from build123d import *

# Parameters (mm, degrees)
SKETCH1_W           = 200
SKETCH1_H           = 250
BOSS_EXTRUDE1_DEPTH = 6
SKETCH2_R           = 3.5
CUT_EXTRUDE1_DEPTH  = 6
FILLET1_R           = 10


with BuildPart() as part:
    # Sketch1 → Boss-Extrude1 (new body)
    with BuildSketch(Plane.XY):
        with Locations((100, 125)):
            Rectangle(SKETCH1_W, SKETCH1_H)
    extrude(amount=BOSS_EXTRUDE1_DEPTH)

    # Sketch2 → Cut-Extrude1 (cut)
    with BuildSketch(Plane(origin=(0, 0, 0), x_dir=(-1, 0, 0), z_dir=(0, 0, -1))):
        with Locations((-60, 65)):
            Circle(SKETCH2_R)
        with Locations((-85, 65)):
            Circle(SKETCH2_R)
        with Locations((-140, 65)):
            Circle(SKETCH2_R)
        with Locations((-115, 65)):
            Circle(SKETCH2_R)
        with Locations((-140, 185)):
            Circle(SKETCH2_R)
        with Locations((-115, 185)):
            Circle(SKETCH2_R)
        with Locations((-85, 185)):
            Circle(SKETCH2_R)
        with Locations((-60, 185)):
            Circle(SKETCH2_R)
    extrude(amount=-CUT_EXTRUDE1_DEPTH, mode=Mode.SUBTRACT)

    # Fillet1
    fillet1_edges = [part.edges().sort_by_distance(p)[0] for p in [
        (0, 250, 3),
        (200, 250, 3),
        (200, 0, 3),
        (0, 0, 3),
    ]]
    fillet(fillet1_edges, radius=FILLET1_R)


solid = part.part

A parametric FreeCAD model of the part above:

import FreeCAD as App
import Part
import Sketcher


def edges_at(feature, points):
    """Names of the edges that pass closest to the given points."""
    edges = feature.Shape.Edges
    near = lambda p: min(range(len(edges)), key=lambda i: edges[i].distToShape(Part.Vertex(*p))[0])
    return sorted({f"Edge{near(p) + 1}" for p in points})


def add_polygon(sketch, points):
    """Adds a closed chain of lines whose ends are joined by coincident constraints."""
    first, n = sketch.GeometryCount, len(points)
    for a, b in zip(points, points[1:] + points[:1]):
        sketch.addGeometry(Part.LineSegment(App.Vector(*a, 0), App.Vector(*b, 0)), False)
    for i in range(n):
        sketch.addConstraint(Sketcher.Constraint("Coincident", first + i, 2, first + (i + 1) % n, 1))

doc = App.newDocument("Part")
body = doc.addObject("PartDesign::Body", "Body")

# Sketch on XY plane
sketch1 = body.newObject("Sketcher::SketchObject", "Sketch")
sketch1.AttachmentSupport = (doc.getObject("XY_Plane"), [""])
sketch1.MapMode = "FlatFace"
add_polygon(sketch1, [(0, 250), (0, 0), (200, 0), (200, 250)])  # lines 0-3
sketch1.addConstraint([
    Sketcher.Constraint("Vertical", 0),
    Sketcher.Constraint("Horizontal", 1),
    Sketcher.Constraint("Vertical", 2),
    Sketcher.Constraint("Horizontal", 3),
    Sketcher.Constraint("Coincident", 0, 2, -1, 1),
    Sketcher.Constraint("DistanceX", 1, 1, 1, 2, 200.0),
    Sketcher.Constraint("DistanceY", 0, 2, 0, 1, 250.0),
])
pad1 = body.newObject("PartDesign::Pad", "Pad")
pad1.Profile = sketch1
pad1.Length = 6

# Sketch on XY plane
sketch2 = body.newObject("Sketcher::SketchObject", "Sketch001")
sketch2.AttachmentSupport = (doc.getObject("XY_Plane"), [""])
sketch2.MapMode = "FlatFace"
sketch2.addGeometry([
    Part.Circle(App.Vector(60, 65, 0), App.Vector(0, 0, 1), 3.5),  # 0
    Part.Circle(App.Vector(85, 65, 0), App.Vector(0, 0, 1), 3.5),  # 1
    Part.Circle(App.Vector(140, 65, 0), App.Vector(0, 0, 1), 3.5),  # 2
    Part.Circle(App.Vector(115, 65, 0), App.Vector(0, 0, 1), 3.5),  # 3
    Part.Circle(App.Vector(140, 185, 0), App.Vector(0, 0, 1), 3.5),  # 4
    Part.Circle(App.Vector(115, 185, 0), App.Vector(0, 0, 1), 3.5),  # 5
    Part.Circle(App.Vector(85, 185, 0), App.Vector(0, 0, 1), 3.5),  # 6
    Part.Circle(App.Vector(60, 185, 0), App.Vector(0, 0, 1), 3.5),  # 7
], False)
sketch2.addConstraint([
    Sketcher.Constraint("Equal", 0, 1),
    Sketcher.Constraint("Equal", 1, 2),
    Sketcher.Constraint("Equal", 2, 3),
    Sketcher.Constraint("Equal", 3, 4),
    Sketcher.Constraint("Equal", 4, 5),
    Sketcher.Constraint("Equal", 5, 6),
    Sketcher.Constraint("Equal", 6, 7),
    Sketcher.Constraint("Horizontal", 0, 3, 1, 3),
    Sketcher.Constraint("Horizontal", 1, 3, 2, 3),
    Sketcher.Constraint("Horizontal", 2, 3, 3, 3),
    Sketcher.Constraint("Horizontal", 4, 3, 5, 3),
    Sketcher.Constraint("Horizontal", 5, 3, 6, 3),
    Sketcher.Constraint("Horizontal", 6, 3, 7, 3),
    Sketcher.Constraint("Vertical", 2, 3, 4, 3),
    Sketcher.Constraint("Vertical", 3, 3, 5, 3),
    Sketcher.Constraint("Vertical", 1, 3, 6, 3),
    Sketcher.Constraint("Vertical", 0, 3, 7, 3),
    Sketcher.Constraint("Diameter", 0, 7.0),
    Sketcher.Constraint("DistanceX", -1, 1, 0, 3, 60.0),
    Sketcher.Constraint("DistanceY", -1, 1, 0, 3, 65.0),
    Sketcher.Constraint("DistanceX", -1, 1, 1, 3, 85.0),
    Sketcher.Constraint("DistanceX", -1, 1, 2, 3, 140.0),
    Sketcher.Constraint("DistanceX", -1, 1, 3, 3, 115.0),
    Sketcher.Constraint("DistanceY", -1, 1, 4, 3, 185.0),
])
pocket1 = body.newObject("PartDesign::Pocket", "Pocket")
pocket1.Profile = sketch2
pocket1.Length = 6
pocket1.Reversed = True
doc.recompute()

fillet = body.newObject("PartDesign::Fillet", "Fillet")
fillet.Base = (pocket1, edges_at(pocket1, [
    (0, 250, 3),
    (200, 250, 3),
    (200, 0, 3),
    (0, 0, 3),
]))
fillet.Radius = 10

doc.recompute()
